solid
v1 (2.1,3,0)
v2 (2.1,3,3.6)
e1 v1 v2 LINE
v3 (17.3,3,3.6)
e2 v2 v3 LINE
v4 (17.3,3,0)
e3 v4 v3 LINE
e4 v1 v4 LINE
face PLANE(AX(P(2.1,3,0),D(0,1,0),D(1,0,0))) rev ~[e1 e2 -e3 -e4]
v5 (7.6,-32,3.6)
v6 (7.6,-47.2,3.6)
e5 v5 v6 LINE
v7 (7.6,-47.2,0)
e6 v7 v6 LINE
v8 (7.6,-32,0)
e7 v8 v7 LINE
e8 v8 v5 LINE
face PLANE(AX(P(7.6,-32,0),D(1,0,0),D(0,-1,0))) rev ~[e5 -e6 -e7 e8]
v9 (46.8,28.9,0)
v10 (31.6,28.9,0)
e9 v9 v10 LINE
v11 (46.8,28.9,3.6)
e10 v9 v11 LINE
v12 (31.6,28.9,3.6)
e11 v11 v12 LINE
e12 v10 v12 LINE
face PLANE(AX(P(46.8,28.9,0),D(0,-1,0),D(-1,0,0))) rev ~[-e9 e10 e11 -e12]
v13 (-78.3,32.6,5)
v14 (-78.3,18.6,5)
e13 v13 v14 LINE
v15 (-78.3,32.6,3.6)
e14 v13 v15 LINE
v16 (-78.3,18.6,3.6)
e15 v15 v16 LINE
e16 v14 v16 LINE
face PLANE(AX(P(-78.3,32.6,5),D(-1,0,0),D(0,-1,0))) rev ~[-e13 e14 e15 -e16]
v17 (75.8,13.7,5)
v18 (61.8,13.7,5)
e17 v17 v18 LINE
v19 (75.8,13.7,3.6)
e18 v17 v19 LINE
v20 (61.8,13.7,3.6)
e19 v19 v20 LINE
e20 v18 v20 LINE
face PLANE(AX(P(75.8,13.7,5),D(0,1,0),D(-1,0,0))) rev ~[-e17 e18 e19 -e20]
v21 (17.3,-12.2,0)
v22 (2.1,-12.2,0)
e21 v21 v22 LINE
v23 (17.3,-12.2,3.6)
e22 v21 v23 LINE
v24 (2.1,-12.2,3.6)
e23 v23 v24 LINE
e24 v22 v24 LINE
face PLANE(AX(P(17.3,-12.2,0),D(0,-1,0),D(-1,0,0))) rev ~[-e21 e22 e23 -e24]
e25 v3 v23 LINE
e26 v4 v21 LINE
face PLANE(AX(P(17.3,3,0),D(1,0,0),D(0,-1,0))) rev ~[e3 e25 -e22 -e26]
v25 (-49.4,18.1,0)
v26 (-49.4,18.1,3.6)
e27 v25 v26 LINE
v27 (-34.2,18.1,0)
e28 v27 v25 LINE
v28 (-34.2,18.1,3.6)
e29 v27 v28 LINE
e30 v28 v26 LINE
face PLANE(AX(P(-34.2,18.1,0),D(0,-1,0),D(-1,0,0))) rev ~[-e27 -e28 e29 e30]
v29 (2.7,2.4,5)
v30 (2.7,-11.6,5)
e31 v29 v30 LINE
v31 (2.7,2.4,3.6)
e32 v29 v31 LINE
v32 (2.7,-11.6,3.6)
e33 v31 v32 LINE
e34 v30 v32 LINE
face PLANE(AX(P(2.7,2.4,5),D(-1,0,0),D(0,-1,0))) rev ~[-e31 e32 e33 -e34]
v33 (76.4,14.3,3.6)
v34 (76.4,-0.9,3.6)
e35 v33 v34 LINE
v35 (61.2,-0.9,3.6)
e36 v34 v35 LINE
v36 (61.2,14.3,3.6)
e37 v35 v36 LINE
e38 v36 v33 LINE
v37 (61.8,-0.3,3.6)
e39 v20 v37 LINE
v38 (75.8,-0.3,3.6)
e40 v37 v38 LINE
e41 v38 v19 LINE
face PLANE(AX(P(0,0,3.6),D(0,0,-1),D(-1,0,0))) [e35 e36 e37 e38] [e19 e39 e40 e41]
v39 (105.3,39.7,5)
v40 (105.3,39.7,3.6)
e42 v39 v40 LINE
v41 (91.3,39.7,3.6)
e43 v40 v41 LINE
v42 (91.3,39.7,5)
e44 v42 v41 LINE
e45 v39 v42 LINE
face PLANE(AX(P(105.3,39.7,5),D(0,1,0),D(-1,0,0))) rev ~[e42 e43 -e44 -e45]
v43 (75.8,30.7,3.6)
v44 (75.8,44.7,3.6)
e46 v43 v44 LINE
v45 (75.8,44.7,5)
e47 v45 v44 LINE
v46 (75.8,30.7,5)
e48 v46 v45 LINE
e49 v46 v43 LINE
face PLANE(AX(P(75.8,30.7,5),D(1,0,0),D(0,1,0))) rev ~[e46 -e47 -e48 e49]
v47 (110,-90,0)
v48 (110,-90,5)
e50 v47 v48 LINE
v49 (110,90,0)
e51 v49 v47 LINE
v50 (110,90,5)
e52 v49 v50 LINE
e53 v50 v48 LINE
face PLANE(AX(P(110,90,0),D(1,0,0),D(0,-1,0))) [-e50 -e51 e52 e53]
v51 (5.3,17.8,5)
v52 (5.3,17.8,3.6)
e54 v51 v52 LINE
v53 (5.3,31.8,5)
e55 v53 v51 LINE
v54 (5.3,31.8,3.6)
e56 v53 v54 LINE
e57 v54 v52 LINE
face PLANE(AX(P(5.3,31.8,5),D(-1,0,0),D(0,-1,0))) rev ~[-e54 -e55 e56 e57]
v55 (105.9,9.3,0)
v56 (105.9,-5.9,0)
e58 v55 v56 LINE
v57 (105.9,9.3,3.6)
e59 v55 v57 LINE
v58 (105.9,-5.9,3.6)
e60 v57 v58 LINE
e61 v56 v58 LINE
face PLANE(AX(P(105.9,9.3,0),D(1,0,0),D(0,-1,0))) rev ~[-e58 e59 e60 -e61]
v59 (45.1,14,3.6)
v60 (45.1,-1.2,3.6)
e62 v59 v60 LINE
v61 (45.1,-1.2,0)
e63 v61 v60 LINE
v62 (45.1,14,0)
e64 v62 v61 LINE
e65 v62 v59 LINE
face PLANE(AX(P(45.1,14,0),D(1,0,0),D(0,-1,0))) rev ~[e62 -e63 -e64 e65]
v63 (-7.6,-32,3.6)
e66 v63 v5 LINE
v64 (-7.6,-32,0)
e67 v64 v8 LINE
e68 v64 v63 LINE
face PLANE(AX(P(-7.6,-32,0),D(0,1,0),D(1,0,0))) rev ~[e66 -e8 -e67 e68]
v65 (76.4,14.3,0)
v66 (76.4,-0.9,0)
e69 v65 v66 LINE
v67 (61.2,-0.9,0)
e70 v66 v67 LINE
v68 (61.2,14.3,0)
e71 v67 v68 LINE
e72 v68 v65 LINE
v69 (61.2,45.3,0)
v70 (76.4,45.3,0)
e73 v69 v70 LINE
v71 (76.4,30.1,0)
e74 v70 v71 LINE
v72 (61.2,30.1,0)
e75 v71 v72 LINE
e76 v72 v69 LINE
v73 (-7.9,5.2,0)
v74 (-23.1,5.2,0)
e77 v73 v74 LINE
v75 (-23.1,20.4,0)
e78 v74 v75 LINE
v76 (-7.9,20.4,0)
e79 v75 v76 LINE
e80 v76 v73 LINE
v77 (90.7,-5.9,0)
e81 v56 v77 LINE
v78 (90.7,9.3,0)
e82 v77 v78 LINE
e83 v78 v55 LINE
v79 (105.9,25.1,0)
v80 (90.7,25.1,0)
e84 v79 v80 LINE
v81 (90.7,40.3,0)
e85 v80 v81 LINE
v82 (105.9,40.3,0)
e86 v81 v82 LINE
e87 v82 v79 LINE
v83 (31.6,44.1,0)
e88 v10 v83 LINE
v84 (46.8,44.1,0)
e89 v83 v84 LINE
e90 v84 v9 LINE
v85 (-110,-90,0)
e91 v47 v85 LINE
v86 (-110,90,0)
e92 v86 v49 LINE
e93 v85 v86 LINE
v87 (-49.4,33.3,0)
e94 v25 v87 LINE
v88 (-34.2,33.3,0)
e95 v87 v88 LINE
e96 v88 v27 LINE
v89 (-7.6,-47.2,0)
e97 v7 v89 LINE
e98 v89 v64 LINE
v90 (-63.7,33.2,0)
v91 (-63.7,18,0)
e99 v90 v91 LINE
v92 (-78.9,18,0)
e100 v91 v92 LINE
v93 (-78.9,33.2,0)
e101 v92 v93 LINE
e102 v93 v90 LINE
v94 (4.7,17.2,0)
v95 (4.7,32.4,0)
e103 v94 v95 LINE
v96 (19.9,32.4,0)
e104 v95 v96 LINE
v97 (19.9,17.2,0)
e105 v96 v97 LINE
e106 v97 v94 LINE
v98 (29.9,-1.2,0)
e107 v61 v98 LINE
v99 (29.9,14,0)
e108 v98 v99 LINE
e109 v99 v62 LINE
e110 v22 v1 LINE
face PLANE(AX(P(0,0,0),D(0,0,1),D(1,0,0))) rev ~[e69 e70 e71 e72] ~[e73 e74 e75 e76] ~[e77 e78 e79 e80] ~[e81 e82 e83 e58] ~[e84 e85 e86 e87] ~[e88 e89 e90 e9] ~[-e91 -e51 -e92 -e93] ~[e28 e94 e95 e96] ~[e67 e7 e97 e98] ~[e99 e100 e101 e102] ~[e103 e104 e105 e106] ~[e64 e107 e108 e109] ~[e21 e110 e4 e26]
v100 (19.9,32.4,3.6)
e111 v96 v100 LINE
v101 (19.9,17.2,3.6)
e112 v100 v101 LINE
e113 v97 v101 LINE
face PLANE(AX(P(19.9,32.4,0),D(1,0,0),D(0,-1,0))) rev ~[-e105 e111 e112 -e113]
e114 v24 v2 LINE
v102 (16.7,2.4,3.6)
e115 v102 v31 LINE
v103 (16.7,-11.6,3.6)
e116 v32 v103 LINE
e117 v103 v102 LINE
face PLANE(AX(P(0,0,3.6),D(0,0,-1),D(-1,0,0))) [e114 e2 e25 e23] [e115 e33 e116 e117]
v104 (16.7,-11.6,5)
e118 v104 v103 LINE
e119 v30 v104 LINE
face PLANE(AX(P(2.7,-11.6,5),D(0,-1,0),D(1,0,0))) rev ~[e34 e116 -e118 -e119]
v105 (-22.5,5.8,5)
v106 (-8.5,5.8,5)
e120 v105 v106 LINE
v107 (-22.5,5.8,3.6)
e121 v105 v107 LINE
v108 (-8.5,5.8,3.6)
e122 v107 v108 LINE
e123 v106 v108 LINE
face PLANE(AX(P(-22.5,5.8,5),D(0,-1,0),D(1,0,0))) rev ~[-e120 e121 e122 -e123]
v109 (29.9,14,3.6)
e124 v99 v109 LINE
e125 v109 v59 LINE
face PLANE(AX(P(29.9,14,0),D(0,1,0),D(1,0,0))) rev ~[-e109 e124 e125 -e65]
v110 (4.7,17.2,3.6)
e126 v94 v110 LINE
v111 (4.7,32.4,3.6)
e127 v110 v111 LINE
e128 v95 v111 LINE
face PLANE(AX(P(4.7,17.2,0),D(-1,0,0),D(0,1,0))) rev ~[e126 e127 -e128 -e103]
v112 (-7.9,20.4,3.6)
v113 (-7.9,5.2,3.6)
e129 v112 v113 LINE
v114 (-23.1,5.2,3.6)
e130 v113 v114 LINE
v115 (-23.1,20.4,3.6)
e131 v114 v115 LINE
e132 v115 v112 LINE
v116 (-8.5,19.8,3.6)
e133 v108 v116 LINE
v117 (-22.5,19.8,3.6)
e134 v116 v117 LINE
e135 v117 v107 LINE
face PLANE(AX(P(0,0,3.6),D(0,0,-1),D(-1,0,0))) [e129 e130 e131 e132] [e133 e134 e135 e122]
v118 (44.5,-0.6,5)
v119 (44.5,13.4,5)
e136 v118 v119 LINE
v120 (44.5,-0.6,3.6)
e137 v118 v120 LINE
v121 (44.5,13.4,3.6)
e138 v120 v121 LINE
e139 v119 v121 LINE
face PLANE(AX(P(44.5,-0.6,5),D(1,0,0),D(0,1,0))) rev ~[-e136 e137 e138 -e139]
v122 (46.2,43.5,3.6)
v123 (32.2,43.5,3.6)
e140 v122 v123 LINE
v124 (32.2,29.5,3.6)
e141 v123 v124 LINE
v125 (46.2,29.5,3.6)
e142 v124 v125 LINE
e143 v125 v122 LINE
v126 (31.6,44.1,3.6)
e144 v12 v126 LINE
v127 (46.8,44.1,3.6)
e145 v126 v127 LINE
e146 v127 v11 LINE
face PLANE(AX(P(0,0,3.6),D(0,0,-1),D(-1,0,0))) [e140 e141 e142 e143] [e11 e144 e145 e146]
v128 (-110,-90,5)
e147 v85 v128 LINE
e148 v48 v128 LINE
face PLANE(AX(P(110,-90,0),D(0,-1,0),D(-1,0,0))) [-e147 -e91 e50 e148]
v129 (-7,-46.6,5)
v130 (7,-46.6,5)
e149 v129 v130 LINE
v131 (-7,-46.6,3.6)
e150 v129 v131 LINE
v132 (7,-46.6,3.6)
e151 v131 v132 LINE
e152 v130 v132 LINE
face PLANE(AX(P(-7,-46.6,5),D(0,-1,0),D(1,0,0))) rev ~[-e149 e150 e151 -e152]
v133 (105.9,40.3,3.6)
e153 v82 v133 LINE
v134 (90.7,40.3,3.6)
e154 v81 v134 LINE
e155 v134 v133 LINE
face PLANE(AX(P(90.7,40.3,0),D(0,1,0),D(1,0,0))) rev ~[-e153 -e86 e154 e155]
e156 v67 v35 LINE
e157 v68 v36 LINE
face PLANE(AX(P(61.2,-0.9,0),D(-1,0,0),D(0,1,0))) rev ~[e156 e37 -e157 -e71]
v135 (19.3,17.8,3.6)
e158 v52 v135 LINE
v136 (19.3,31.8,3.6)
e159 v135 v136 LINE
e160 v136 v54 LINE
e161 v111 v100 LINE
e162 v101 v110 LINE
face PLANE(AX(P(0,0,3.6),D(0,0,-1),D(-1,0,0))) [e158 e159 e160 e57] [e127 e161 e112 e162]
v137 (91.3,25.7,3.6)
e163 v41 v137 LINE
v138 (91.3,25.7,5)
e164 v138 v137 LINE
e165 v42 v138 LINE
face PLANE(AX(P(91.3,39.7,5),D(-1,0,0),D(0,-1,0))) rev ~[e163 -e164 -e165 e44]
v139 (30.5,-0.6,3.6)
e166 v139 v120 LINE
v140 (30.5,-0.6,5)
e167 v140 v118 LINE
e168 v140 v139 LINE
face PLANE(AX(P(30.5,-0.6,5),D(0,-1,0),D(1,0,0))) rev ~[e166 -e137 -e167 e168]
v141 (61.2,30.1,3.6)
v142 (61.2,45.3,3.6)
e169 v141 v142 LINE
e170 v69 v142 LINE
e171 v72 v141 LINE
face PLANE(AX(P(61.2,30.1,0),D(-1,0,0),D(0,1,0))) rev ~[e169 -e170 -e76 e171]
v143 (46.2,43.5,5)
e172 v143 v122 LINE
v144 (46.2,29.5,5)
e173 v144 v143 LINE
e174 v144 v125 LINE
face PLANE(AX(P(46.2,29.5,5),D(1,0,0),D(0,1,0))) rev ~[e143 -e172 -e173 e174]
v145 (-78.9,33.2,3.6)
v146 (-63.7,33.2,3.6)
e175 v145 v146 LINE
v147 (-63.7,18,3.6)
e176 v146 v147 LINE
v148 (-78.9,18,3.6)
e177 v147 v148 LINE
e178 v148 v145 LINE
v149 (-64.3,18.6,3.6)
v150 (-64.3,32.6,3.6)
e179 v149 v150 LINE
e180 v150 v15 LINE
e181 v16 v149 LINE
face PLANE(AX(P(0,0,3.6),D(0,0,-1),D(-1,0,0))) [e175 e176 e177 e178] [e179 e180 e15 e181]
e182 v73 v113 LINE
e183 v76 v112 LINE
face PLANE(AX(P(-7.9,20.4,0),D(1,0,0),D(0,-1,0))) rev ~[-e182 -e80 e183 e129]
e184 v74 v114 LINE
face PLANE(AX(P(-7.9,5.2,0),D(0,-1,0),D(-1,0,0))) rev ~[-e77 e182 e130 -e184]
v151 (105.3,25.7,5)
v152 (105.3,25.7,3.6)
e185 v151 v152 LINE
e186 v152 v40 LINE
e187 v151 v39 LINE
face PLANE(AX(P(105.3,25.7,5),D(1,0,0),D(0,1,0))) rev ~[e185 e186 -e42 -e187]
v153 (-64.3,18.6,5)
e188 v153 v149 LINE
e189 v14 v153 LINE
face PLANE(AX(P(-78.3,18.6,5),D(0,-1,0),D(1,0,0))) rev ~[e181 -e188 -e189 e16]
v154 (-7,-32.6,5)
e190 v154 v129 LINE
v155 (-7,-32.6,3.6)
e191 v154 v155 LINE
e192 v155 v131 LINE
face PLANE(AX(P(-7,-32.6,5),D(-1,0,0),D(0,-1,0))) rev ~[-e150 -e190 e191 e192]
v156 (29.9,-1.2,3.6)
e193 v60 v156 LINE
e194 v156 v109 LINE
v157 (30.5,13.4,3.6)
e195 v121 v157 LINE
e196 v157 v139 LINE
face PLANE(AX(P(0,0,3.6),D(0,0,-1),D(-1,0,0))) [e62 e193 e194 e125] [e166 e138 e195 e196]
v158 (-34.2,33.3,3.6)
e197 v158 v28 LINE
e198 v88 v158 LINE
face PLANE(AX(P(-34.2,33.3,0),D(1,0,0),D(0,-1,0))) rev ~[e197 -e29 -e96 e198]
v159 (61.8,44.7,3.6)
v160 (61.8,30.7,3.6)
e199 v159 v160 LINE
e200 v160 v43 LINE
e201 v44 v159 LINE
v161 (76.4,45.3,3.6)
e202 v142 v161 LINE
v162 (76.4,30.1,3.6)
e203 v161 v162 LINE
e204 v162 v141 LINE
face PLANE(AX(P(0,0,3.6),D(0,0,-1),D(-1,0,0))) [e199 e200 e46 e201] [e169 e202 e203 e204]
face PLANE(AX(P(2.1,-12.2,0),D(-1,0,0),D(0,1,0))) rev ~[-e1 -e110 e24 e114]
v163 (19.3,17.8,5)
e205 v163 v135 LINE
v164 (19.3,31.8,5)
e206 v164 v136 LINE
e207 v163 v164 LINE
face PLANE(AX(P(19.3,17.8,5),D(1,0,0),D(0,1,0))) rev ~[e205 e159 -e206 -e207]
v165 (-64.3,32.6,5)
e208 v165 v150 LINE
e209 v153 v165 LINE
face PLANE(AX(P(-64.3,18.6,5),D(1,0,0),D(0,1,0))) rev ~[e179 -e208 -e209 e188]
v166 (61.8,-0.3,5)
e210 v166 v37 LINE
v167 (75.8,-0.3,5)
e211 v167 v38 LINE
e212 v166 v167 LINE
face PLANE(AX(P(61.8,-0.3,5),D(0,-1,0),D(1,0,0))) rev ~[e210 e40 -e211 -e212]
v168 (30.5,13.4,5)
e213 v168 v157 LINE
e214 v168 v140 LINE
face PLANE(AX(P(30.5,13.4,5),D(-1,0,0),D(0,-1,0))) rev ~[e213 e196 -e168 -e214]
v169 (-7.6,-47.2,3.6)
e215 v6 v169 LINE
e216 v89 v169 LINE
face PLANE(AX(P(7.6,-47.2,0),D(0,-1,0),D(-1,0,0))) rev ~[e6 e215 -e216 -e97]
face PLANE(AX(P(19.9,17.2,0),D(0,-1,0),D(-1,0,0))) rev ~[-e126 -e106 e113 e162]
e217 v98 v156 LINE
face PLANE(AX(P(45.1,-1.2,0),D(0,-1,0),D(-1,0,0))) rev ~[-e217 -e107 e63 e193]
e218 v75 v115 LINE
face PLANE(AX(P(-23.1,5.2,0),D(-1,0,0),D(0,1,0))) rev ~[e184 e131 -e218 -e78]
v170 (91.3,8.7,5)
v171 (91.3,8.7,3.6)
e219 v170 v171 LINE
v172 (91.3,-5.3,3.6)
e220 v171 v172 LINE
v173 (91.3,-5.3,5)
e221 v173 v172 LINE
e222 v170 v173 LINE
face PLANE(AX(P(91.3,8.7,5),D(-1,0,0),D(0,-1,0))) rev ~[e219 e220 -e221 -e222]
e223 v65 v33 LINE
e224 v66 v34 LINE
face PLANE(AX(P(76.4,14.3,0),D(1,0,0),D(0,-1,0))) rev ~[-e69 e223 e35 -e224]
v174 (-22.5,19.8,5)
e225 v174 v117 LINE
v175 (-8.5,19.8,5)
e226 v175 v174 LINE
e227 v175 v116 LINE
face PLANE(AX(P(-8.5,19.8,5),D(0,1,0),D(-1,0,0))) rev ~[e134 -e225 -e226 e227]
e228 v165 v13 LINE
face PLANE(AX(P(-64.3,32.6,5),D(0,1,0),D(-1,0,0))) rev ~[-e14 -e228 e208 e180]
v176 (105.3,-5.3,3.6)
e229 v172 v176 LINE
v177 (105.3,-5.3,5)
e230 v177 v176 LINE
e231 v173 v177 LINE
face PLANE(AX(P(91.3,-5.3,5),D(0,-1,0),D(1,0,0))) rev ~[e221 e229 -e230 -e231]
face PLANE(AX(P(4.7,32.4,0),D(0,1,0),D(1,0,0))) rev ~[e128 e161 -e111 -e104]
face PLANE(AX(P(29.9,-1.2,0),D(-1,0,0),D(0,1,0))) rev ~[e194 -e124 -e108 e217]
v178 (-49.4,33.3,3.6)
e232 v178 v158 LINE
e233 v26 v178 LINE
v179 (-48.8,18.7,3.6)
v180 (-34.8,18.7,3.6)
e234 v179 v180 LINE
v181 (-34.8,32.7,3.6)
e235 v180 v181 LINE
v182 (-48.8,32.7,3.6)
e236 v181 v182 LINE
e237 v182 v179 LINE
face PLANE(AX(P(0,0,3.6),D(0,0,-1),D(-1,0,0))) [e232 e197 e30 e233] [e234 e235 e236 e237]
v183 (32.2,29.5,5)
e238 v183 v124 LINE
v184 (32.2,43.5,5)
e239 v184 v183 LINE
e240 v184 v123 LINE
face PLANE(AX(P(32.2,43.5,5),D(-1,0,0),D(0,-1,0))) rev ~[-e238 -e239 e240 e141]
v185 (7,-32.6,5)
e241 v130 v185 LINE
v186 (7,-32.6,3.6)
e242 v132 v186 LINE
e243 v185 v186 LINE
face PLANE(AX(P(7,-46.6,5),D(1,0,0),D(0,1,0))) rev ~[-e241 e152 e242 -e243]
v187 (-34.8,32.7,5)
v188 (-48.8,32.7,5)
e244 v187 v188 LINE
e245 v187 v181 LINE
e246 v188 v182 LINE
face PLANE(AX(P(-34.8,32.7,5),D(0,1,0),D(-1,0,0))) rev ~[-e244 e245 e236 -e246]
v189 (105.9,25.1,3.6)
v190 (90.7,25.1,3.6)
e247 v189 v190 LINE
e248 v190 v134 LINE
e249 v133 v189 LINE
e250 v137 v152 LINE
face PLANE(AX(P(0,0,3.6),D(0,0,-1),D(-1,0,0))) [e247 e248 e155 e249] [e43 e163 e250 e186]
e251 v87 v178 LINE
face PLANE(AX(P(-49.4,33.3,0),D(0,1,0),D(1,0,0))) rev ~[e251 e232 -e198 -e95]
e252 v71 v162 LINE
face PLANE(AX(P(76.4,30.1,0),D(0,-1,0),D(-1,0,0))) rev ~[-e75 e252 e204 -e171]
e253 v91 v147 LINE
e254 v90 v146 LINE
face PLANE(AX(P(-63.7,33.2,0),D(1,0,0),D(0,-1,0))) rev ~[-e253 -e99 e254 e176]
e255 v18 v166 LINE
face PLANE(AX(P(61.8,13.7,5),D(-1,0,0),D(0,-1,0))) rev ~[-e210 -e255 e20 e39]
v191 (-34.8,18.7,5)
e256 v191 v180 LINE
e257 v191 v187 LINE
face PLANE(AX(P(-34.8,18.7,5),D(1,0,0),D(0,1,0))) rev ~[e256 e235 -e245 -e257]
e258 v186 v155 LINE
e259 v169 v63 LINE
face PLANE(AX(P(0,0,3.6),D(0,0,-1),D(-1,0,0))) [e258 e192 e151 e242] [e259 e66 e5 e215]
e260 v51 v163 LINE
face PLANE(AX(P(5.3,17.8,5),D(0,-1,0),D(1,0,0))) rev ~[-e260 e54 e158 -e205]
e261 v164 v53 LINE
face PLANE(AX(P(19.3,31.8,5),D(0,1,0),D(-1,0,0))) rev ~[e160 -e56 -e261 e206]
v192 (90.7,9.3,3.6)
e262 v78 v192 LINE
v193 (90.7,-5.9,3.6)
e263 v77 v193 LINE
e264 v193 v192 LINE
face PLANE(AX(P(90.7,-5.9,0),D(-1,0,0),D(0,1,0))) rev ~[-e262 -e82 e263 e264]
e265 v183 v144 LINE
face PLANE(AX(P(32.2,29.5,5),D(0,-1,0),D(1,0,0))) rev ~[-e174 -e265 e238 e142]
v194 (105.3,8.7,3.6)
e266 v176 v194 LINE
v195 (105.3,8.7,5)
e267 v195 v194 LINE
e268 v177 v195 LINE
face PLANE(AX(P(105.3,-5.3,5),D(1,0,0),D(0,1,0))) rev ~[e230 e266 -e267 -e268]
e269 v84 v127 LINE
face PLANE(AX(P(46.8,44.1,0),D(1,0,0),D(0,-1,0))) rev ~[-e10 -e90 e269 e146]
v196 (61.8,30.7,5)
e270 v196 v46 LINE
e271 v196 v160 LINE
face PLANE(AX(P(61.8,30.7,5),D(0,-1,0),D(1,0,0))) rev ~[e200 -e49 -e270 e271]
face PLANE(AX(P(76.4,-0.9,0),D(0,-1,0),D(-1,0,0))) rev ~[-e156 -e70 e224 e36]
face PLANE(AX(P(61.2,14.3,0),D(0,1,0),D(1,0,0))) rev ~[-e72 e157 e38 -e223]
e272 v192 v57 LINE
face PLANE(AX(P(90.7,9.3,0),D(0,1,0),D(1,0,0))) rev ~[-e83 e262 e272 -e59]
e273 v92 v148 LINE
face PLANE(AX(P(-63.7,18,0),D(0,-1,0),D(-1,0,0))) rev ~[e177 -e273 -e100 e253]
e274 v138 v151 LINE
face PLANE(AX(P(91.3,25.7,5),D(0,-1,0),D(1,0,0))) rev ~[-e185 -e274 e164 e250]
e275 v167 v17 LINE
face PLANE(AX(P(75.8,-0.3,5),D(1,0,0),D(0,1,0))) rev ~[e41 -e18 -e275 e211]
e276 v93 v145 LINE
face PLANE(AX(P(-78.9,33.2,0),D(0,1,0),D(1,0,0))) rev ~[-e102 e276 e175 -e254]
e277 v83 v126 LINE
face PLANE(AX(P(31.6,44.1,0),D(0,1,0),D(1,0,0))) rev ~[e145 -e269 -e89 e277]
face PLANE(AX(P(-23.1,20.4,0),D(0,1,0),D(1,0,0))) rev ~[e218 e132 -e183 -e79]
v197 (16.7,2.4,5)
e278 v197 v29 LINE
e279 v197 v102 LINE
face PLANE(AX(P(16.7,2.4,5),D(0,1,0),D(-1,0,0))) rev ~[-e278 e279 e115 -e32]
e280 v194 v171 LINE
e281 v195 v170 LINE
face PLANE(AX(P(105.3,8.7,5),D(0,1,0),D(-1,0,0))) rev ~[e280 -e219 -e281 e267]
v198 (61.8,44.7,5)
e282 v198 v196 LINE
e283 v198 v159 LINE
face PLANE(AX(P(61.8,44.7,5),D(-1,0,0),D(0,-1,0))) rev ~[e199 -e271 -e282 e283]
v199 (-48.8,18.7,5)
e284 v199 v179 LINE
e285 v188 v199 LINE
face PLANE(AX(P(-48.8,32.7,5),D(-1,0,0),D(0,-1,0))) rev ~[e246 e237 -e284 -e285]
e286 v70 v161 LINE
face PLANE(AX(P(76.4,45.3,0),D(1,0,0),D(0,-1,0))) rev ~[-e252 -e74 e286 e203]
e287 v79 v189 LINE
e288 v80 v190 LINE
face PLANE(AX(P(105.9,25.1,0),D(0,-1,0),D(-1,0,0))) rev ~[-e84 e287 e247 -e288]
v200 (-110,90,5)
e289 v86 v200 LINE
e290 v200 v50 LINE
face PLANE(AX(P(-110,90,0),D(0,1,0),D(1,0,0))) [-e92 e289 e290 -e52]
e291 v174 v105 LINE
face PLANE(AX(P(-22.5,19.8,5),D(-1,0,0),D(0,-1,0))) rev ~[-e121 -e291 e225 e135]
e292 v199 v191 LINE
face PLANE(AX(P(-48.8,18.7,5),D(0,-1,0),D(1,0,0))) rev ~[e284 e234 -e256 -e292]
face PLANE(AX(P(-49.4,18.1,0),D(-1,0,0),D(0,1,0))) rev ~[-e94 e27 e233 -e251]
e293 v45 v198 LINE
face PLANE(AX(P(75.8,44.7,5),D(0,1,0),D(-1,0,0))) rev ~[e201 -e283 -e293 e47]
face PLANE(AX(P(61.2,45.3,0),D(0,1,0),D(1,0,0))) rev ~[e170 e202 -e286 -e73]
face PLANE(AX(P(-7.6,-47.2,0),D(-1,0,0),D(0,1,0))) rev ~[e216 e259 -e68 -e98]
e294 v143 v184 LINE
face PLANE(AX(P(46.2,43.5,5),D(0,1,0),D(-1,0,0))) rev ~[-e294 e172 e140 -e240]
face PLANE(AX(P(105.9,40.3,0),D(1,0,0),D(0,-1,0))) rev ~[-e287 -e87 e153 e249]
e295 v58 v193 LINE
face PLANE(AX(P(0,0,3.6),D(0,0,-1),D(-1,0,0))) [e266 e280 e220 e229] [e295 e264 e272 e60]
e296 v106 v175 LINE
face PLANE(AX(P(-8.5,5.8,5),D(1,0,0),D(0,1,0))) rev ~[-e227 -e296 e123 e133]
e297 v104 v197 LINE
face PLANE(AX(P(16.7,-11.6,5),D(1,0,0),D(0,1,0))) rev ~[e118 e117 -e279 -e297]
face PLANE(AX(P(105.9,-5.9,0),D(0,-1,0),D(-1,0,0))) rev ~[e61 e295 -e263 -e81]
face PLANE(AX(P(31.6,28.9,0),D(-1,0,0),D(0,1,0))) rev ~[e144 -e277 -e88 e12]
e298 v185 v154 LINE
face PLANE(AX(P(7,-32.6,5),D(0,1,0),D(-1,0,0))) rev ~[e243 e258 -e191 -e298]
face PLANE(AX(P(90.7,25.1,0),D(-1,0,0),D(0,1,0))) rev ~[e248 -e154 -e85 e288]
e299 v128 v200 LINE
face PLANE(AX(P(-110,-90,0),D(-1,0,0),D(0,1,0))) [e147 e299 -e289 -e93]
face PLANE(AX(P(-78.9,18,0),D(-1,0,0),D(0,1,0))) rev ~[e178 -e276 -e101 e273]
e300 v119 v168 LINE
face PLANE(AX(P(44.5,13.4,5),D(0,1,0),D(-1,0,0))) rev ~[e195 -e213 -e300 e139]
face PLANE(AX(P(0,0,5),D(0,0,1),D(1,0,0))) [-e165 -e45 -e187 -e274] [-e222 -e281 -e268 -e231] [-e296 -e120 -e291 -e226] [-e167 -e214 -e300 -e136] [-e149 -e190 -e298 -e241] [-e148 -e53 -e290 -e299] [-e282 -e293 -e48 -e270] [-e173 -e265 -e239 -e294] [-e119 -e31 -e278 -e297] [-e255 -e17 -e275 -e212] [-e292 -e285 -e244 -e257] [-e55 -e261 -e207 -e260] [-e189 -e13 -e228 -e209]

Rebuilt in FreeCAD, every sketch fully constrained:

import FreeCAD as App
import Part
import Sketcher
from FreeCAD import Vector
Q = App.Units.Quantity


def add_polygon(sketch, points):
    """Adds a closed chain of lines whose ends are joined by coincident constraints."""
    first, n = sketch.GeometryCount, len(points)
    for a, b in zip(points, points[1:] + points[:1]):
        sketch.addGeometry(Part.LineSegment(App.Vector(*a, 0), App.Vector(*b, 0)), False)
    for i in range(n):
        sketch.addConstraint(Sketcher.Constraint("Coincident", first + i, 2, first + (i + 1) % n, 1))

doc = App.newDocument("Part")
body = doc.addObject("PartDesign::Body", "Body")

# Sketch on XY plane
sketch1 = doc.addObject("Sketcher::SketchObject", "Sketch")
body.addObject(sketch1)
sketch1.AttachmentSupport = (doc.XY_Plane, [""])
sketch1.MapMode = "FlatFace"
add_polygon(sketch1, [(110, 90), (-110, 90), (-110, -90), (110, -90)])  # lines 0-3
sketch1.addConstraint([
    Sketcher.Constraint("Horizontal", 0),
    Sketcher.Constraint("Vertical", 1),
    Sketcher.Constraint("Horizontal", 2),
    Sketcher.Constraint("Vertical", 3),
    Sketcher.Constraint("Symmetric", 0, 2, 2, 2, -1, 1),
    Sketcher.Constraint("DistanceX", 0, 2, 0, 1, Q("220 mm")),
    Sketcher.Constraint("DistanceY", 1, 2, 1, 1, Q("180 mm")),
])
pad1 = doc.addObject("PartDesign::Pad", "Pad")
body.addObject(pad1)
pad1.Profile = sketch1
pad1.Length = 5

# Sketch on XY plane
sketch2 = doc.addObject("Sketcher::SketchObject", "Sketch001")
body.addObject(sketch2)
sketch2.AttachmentSupport = (doc.XY_Plane, [""])
sketch2.MapMode = "FlatFace"
sketch2.AttachmentOffset = App.Placement(Vector(0, 0, 5), App.Rotation())
sketch2.addGeometry([
    Part.Circle(Vector(0, -39.6, 0), Vector(0, 0, 1), 1.5),  # 0
    Part.Circle(Vector(-15.5, 12.8, 0), Vector(0, 0, 1), 1.5),  # 1
    Part.Circle(Vector(-41.8, 25.7, 0), Vector(0, 0, 1), 1.5),  # 2
    Part.Circle(Vector(-71.3, 25.6, 0), Vector(0, 0, 1), 1.5),  # 3
    Part.Circle(Vector(9.7, -4.6, 0), Vector(0, 0, 1), 1.5),  # 4
    Part.Circle(Vector(12.3, 24.8, 0), Vector(0, 0, 1), 1.5),  # 5
    Part.Circle(Vector(37.5, 6.4, 0), Vector(0, 0, 1), 1.5),  # 6
    Part.Circle(Vector(39.2, 36.5, 0), Vector(0, 0, 1), 1.5),  # 7
    Part.Circle(Vector(68.8, 6.7, 0), Vector(0, 0, 1), 1.5),  # 8
    Part.Circle(Vector(68.8, 37.7, 0), Vector(0, 0, 1), 1.5),  # 9
    Part.Circle(Vector(98.3, 1.7, 0), Vector(0, 0, 1), 1.5),  # 10
    Part.Circle(Vector(98.3, 32.7, 0), Vector(0, 0, 1), 1.5),  # 11
], False)
sketch2.addConstraint([
    Sketcher.Constraint("Equal", 0, 1),
    Sketcher.Constraint("Equal", 1, 2),
    Sketcher.Constraint("Equal", 2, 3),
    Sketcher.Constraint("Equal", 3, 4),
    Sketcher.Constraint("Equal", 4, 5),
    Sketcher.Constraint("Equal", 5, 6),
    Sketcher.Constraint("Equal", 6, 7),
    Sketcher.Constraint("Equal", 7, 8),
    Sketcher.Constraint("Equal", 8, 9),
    Sketcher.Constraint("Equal", 9, 10),
    Sketcher.Constraint("Equal", 10, 11),
    Sketcher.Constraint("PointOnObject", 0, 3, -2),
    Sketcher.Constraint("Vertical", 8, 3, 9, 3),
    Sketcher.Constraint("Vertical", 10, 3, 11, 3),
    Sketcher.Constraint("Diameter", 0, Q("3 mm")),
    Sketcher.Constraint("DistanceY", 0, 3, 4, 3, Q("35 mm")),
    Sketcher.Constraint("DistanceX", 3, 3, 4, 3, Q("81 mm")),
    Sketcher.Constraint("DistanceY", 1, 3, 5, 3, Q("12 mm")),
    Sketcher.Constraint("DistanceY", 4, 3, 6, 3, Q("11 mm")),
    Sketcher.Constraint("DistanceX", 1, 3, 6, 3, Q("53 mm")),
    Sketcher.Constraint("DistanceX", 2, 3, 7, 3, Q("81 mm")),
    Sketcher.Constraint("DistanceY", 8, 3, 9, 3, Q("31 mm")),
    Sketcher.Constraint("DistanceY", 10, 3, 8, 3, Q("5 mm")),
    Sketcher.Constraint("DistanceY", 11, 3, 9, 3, Q("5 mm")),
    Sketcher.Constraint("DistanceY", 0, 3, -1, 1, Q("39.6 mm")),
    Sketcher.Constraint("DistanceX", 1, 3, -1, 1, Q("15.5 mm")),
    Sketcher.Constraint("DistanceY", -1, 1, 1, 3, Q("12.8 mm")),
    Sketcher.Constraint("DistanceX", 2, 3, -1, 1, Q("41.8 mm")),
    Sketcher.Constraint("DistanceY", -1, 1, 2, 3, Q("25.7 mm")),
    Sketcher.Constraint("DistanceX", 3, 3, -1, 1, Q("71.3 mm")),
    Sketcher.Constraint("DistanceY", -1, 1, 3, 3, Q("25.6 mm")),
    Sketcher.Constraint("DistanceX", -1, 1, 5, 3, Q("12.3 mm")),
    Sketcher.Constraint("DistanceY", -1, 1, 7, 3, Q("36.5 mm")),
    Sketcher.Constraint("DistanceX", -1, 1, 8, 3, Q("68.8 mm")),
    Sketcher.Constraint("DistanceY", -1, 1, 8, 3, Q("6.7 mm")),
    Sketcher.Constraint("DistanceX", -1, 1, 10, 3, Q("98.3 mm")),
])
doc.recompute()
hole = doc.addObject("PartDesign::Hole", "Hole")
body.addObject(hole)
hole.Profile = sketch2
hole.ThreadType = "None"
hole.Diameter = 3
hole.DepthType = "ThroughAll"

# Sketch on XY plane
sketch3 = doc.addObject("Sketcher::SketchObject", "Sketch002")
body.addObject(sketch3)
sketch3.AttachmentSupport = (doc.XY_Plane, [""])
sketch3.MapMode = "FlatFace"
sketch3.AttachmentOffset = App.Placement(Vector(0, 0, 5), App.Rotation())
add_polygon(sketch3, [(7, -47), (7, -33), (-7, -33), (-7, -47)])  # lines 0-3
add_polygon(sketch3, [(-8, 6), (-8, 20), (-22, 20), (-22, 6)])  # lines 4-7
add_polygon(sketch3, [(-35, 19), (-35, 33), (-49, 33), (-49, 19)])  # lines 8-11
add_polygon(sketch3, [(-64, 19), (-64, 33), (-78, 33), (-78, 19)])  # lines 12-15
add_polygon(sketch3, [(17, 2), (3, 2), (3, -12), (17, -12)])  # lines 16-19
add_polygon(sketch3, [(19, 32), (5, 32), (5, 18), (19, 18)])  # lines 20-23
add_polygon(sketch3, [(44, 13), (30, 13), (30, -1), (44, -1)])  # lines 24-27
add_polygon(sketch3, [(46, 44), (32, 44), (32, 30), (46, 30)])  # lines 28-31
add_polygon(sketch3, [(76, 14), (62, 14), (62, 0), (76, 0)])  # lines 32-35
add_polygon(sketch3, [(76, 45), (62, 45), (62, 31), (76, 31)])  # lines 36-39
add_polygon(sketch3, [(105, 9), (91, 9), (91, -5), (105, -5)])  # lines 40-43
add_polygon(sketch3, [(105, 40), (91, 40), (91, 26), (105, 26)])  # lines 44-47
sketch3.addConstraint([
    Sketcher.Constraint("Vertical", 0),
    Sketcher.Constraint("Horizontal", 1),
    Sketcher.Constraint("Vertical", 2),
    Sketcher.Constraint("Horizontal", 3),
    Sketcher.Constraint("Vertical", 4),
    Sketcher.Constraint("Horizontal", 5),
    Sketcher.Constraint("Vertical", 6),
    Sketcher.Constraint("Horizontal", 7),
    Sketcher.Constraint("Vertical", 8),
    Sketcher.Constraint("Horizontal", 9),
    Sketcher.Constraint("Vertical", 10),
    Sketcher.Constraint("Horizontal", 11),
    Sketcher.Constraint("Vertical", 12),
    Sketcher.Constraint("Horizontal", 13),
    Sketcher.Constraint("Vertical", 14),
    Sketcher.Constraint("Horizontal", 15),
    Sketcher.Constraint("Horizontal", 16),
    Sketcher.Constraint("Vertical", 17),
    Sketcher.Constraint("Horizontal", 18),
    Sketcher.Constraint("Vertical", 19),
    Sketcher.Constraint("Horizontal", 20),
    Sketcher.Constraint("Vertical", 21),
    Sketcher.Constraint("Horizontal", 22),
    Sketcher.Constraint("Vertical", 23),
    Sketcher.Constraint("Horizontal", 24),
    Sketcher.Constraint("Vertical", 25),
    Sketcher.Constraint("Horizontal", 26),
    Sketcher.Constraint("Vertical", 27),
    Sketcher.Constraint("Horizontal", 28),
    Sketcher.Constraint("Vertical", 29),
    Sketcher.Constraint("Horizontal", 30),
    Sketcher.Constraint("Vertical", 31),
    Sketcher.Constraint("Horizontal", 32),
    Sketcher.Constraint("Vertical", 33),
    Sketcher.Constraint("Horizontal", 34),
    Sketcher.Constraint("Vertical", 35),
    Sketcher.Constraint("Horizontal", 36),
    Sketcher.Constraint("Vertical", 37),
    Sketcher.Constraint("Horizontal", 38),
    Sketcher.Constraint("Vertical", 39),
    Sketcher.Constraint("Horizontal", 40),
    Sketcher.Constraint("Vertical", 41),
    Sketcher.Constraint("Horizontal", 42),
    Sketcher.Constraint("Vertical", 43),
    Sketcher.Constraint("Horizontal", 44),
    Sketcher.Constraint("Vertical", 45),
    Sketcher.Constraint("Horizontal", 46),
    Sketcher.Constraint("Vertical", 47),
    Sketcher.Constraint("Vertical", 33, 2, 36, 2),
    Sketcher.Constraint("Vertical", 35, 2, 38, 2),
    Sketcher.Constraint("Vertical", 41, 2, 44, 2),
    Sketcher.Constraint("Vertical", 43, 2, 46, 2),
    Sketcher.Constraint("Equal", 3, 5),
    Sketcher.Constraint("Equal", 7, 9),
    Sketcher.Constraint("Equal", 11, 13),
    Sketcher.Constraint("Equal", 15, 16),
    Sketcher.Constraint("Equal", 18, 20),
    Sketcher.Constraint("Equal", 22, 24),
    Sketcher.Constraint("Equal", 26, 28),
    Sketcher.Constraint("Equal", 30, 32),
    Sketcher.Constraint("Equal", 38, 40),
    Sketcher.Constraint("Equal", 46, 0),
    Sketcher.Constraint("Equal", 2, 4),
    Sketcher.Constraint("Equal", 6, 8),
    Sketcher.Constraint("Equal", 10, 12),
    Sketcher.Constraint("Equal", 14, 17),
    Sketcher.Constraint("Equal", 19, 21),
    Sketcher.Constraint("Equal", 23, 25),
    Sketcher.Constraint("Equal", 27, 29),
    Sketcher.Constraint("Equal", 31, 33),
    Sketcher.Constraint("Equal", 35, 37),
    Sketcher.Constraint("Equal", 39, 41),
    Sketcher.Constraint("Equal", 43, 45),
    Sketcher.Constraint("DistanceX", 1, 2, 1, 1, Q("14 mm")),
    Sketcher.Constraint("DistanceX", -1, 1, 0, 2, Q("7 mm")),
    Sketcher.Constraint("DistanceY", 0, 2, 16, 2, Q("35 mm")),
    Sketcher.Constraint("DistanceY", 4, 2, 20, 2, Q("12 mm")),
    Sketcher.Constraint("DistanceY", 19, 2, 24, 2, Q("11 mm")),
    Sketcher.Constraint("DistanceY", 32, 2, 36, 2, Q("31 mm")),
    Sketcher.Constraint("DistanceY", 40, 2, 35, 2, Q("5 mm")),
    Sketcher.Constraint("DistanceY", 44, 2, 39, 2, Q("5 mm")),
    Sketcher.Constraint("DistanceY", 0, 2, -1, 1, Q("32.6 mm")),
    Sketcher.Constraint("DistanceX", 4, 2, -1, 1, Q("8.5 mm")),
    Sketcher.Constraint("DistanceY", -1, 1, 4, 2, Q("19.8 mm")),
    Sketcher.Constraint("DistanceX", 8, 2, -1, 1, Q("34.8 mm")),
    Sketcher.Constraint("DistanceY", -1, 1, 8, 2, Q("32.7 mm")),
    Sketcher.Constraint("DistanceX", 12, 2, -1, 1, Q("64.3 mm")),
    Sketcher.Constraint("DistanceY", -1, 1, 12, 2, Q("32.6 mm")),
    Sketcher.Constraint("DistanceX", -1, 1, 16, 2, Q("2.7 mm")),
    Sketcher.Constraint("DistanceX", -1, 1, 20, 2, Q("5.3 mm")),
    Sketcher.Constraint("DistanceX", -1, 1, 24, 2, Q("30.5 mm")),
    Sketcher.Constraint("DistanceX", -1, 1, 28, 2, Q("32.2 mm")),
    Sketcher.Constraint("DistanceY", -1, 1, 28, 2, Q("43.5 mm")),
    Sketcher.Constraint("DistanceX", -1, 1, 32, 2, Q("61.8 mm")),
    Sketcher.Constraint("DistanceY", -1, 1, 32, 2, Q("13.7 mm")),
    Sketcher.Constraint("DistanceX", -1, 1, 40, 2, Q("91.3 mm")),
])
pocket1 = doc.addObject("PartDesign::Pocket", "Pocket")
body.addObject(pocket1)
pocket1.Profile = sketch3
pocket1.Type = "ThroughAll"

# Sketch on XY plane
sketch4 = doc.addObject("Sketcher::SketchObject", "Sketch003")
body.addObject(sketch4)
sketch4.AttachmentSupport = (doc.XY_Plane, [""])
sketch4.MapMode = "FlatFace"
add_polygon(sketch4, [(8, -32), (8, -47), (-8, -47), (-8, -32)])  # lines 0-3
add_polygon(sketch4, [(-8, 20), (-8, 5), (-23, 5), (-23, 20)])  # lines 4-7
add_polygon(sketch4, [(-34, 33), (-34, 18), (-49, 18), (-49, 33)])  # lines 8-11
add_polygon(sketch4, [(-64, 33), (-64, 18), (-79, 18), (-79, 33)])  # lines 12-15
add_polygon(sketch4, [(17, -12), (2, -12), (2, 3), (17, 3)])  # lines 16-19
add_polygon(sketch4, [(20, 17), (5, 17), (5, 32), (20, 32)])  # lines 20-23
add_polygon(sketch4, [(45, -1), (30, -1), (30, 14), (45, 14)])  # lines 24-27
add_polygon(sketch4, [(47, 29), (32, 29), (32, 44), (47, 44)])  # lines 28-31
add_polygon(sketch4, [(76, -1), (61, -1), (61, 14), (76, 14)])  # lines 32-35
add_polygon(sketch4, [(76, 30), (61, 30), (61, 45), (76, 45)])  # lines 36-39
add_polygon(sketch4, [(106, 25), (91, 25), (91, 40), (106, 40)])  # lines 40-43
add_polygon(sketch4, [(106, -6), (91, -6), (91, 9), (106, 9)])  # lines 44-47
sketch4.addConstraint([
    Sketcher.Constraint("Vertical", 0),
    Sketcher.Constraint("Horizontal", 1),
    Sketcher.Constraint("Vertical", 2),
    Sketcher.Constraint("Horizontal", 3),
    Sketcher.Constraint("Vertical", 4),
    Sketcher.Constraint("Horizontal", 5),
    Sketcher.Constraint("Vertical", 6),
    Sketcher.Constraint("Horizontal", 7),
    Sketcher.Constraint("Vertical", 8),
    Sketcher.Constraint("Horizontal", 9),
    Sketcher.Constraint("Vertical", 10),
    Sketcher.Constraint("Horizontal", 11),
    Sketcher.Constraint("Vertical", 12),
    Sketcher.Constraint("Horizontal", 13),
    Sketcher.Constraint("Vertical", 14),
    Sketcher.Constraint("Horizontal", 15),
    Sketcher.Constraint("Horizontal", 16),
    Sketcher.Constraint("Vertical", 17),
    Sketcher.Constraint("Horizontal", 18),
    Sketcher.Constraint("Vertical", 19),
    Sketcher.Constraint("Horizontal", 20),
    Sketcher.Constraint("Vertical", 21),
    Sketcher.Constraint("Horizontal", 22),
    Sketcher.Constraint("Vertical", 23),
    Sketcher.Constraint("Horizontal", 24),
    Sketcher.Constraint("Vertical", 25),
    Sketcher.Constraint("Horizontal", 26),
    Sketcher.Constraint("Vertical", 27),
    Sketcher.Constraint("Horizontal", 28),
    Sketcher.Constraint("Vertical", 29),
    Sketcher.Constraint("Horizontal", 30),
    Sketcher.Constraint("Vertical", 31),
    Sketcher.Constraint("Horizontal", 32),
    Sketcher.Constraint("Vertical", 33),
    Sketcher.Constraint("Horizontal", 34),
    Sketcher.Constraint("Vertical", 35),
    Sketcher.Constraint("Horizontal", 36),
    Sketcher.Constraint("Vertical", 37),
    Sketcher.Constraint("Horizontal", 38),
    Sketcher.Constraint("Vertical", 39),
    Sketcher.Constraint("Horizontal", 40),
    Sketcher.Constraint("Vertical", 41),
    Sketcher.Constraint("Horizontal", 42),
    Sketcher.Constraint("Vertical", 43),
    Sketcher.Constraint("Horizontal", 44),
    Sketcher.Constraint("Vertical", 45),
    Sketcher.Constraint("Horizontal", 46),
    Sketcher.Constraint("Vertical", 47),
    Sketcher.Constraint("Vertical", 33, 2, 36, 2),
    Sketcher.Constraint("Vertical", 35, 2, 38, 2),
    Sketcher.Constraint("Vertical", 41, 2, 44, 2),
    Sketcher.Constraint("Vertical", 43, 2, 46, 2),
    Sketcher.Constraint("Equal", 3, 5),
    Sketcher.Constraint("Equal", 7, 9),
    Sketcher.Constraint("Equal", 11, 13),
    Sketcher.Constraint("Equal", 15, 16),
    Sketcher.Constraint("Equal", 18, 20),
    Sketcher.Constraint("Equal", 22, 24),
    Sketcher.Constraint("Equal", 26, 28),
    Sketcher.Constraint("Equal", 30, 32),
    Sketcher.Constraint("Equal", 38, 40),
    Sketcher.Constraint("Equal", 46, 0),
    Sketcher.Constraint("Equal", 2, 4),
    Sketcher.Constraint("Equal", 6, 8),
    Sketcher.Constraint("Equal", 10, 12),
    Sketcher.Constraint("Equal", 14, 17),
    Sketcher.Constraint("Equal", 19, 21),
    Sketcher.Constraint("Equal", 23, 25),
    Sketcher.Constraint("Equal", 27, 29),
    Sketcher.Constraint("Equal", 31, 33),
    Sketcher.Constraint("Equal", 35, 37),
    Sketcher.Constraint("Equal", 39, 41),
    Sketcher.Constraint("Equal", 43, 45),
    Sketcher.Constraint("DistanceX", 1, 2, 1, 1, Q("15.2 mm")),
    Sketcher.Constraint("DistanceY", 2, 2, -1, 1, Q("32 mm")),
    Sketcher.Constraint("DistanceY", -1, 1, 12, 2, Q("18 mm")),
    Sketcher.Constraint("DistanceY", -1, 1, 17, 2, Q("3 mm")),
    Sketcher.Constraint("DistanceY", -1, 1, 25, 2, Q("14 mm")),
    Sketcher.Constraint("DistanceX", 4, 2, 16, 2, Q("10 mm")),
    Sketcher.Constraint("DistanceY", 4, 2, 20, 2, Q("12 mm")),
    Sketcher.Constraint("DistanceX", 23, 2, 24, 2, Q("10 mm")),
    Sketcher.Constraint("DistanceY", 36, 2, 30, 2, Q("14 mm")),
    Sketcher.Constraint("DistanceY", 33, 2, 37, 2, Q("31 mm")),
    Sketcher.Constraint("DistanceY", 40, 2, 39, 2, Q("5 mm")),
    Sketcher.Constraint("DistanceY", 44, 2, 35, 2, Q("5 mm")),
    Sketcher.Constraint("DistanceX", -1, 1, 0, 2, Q("7.6 mm")),
    Sketcher.Constraint("DistanceX", 4, 2, -1, 1, Q("7.9 mm")),
    Sketcher.Constraint("DistanceY", -1, 1, 4, 2, Q("5.2 mm")),
    Sketcher.Constraint("DistanceX", 8, 2, -1, 1, Q("34.2 mm")),
    Sketcher.Constraint("DistanceY", -1, 1, 8, 2, Q("18.1 mm")),
    Sketcher.Constraint("DistanceX", 12, 2, -1, 1, Q("63.7 mm")),
    Sketcher.Constraint("DistanceX", -1, 1, 20, 2, Q("4.7 mm")),
    Sketcher.Constraint("DistanceX", -1, 1, 28, 2, Q("31.6 mm")),
    Sketcher.Constraint("DistanceY", -1, 1, 28, 2, Q("28.9 mm")),
    Sketcher.Constraint("DistanceX", -1, 1, 32, 2, Q("61.2 mm")),
    Sketcher.Constraint("DistanceX", -1, 1, 40, 2, Q("90.7 mm")),
])
pocket2 = doc.addObject("PartDesign::Pocket", "Pocket001")
body.addObject(pocket2)
pocket2.Profile = sketch4
pocket2.Length = 3.6
pocket2.Reversed = True

doc.recompute()
